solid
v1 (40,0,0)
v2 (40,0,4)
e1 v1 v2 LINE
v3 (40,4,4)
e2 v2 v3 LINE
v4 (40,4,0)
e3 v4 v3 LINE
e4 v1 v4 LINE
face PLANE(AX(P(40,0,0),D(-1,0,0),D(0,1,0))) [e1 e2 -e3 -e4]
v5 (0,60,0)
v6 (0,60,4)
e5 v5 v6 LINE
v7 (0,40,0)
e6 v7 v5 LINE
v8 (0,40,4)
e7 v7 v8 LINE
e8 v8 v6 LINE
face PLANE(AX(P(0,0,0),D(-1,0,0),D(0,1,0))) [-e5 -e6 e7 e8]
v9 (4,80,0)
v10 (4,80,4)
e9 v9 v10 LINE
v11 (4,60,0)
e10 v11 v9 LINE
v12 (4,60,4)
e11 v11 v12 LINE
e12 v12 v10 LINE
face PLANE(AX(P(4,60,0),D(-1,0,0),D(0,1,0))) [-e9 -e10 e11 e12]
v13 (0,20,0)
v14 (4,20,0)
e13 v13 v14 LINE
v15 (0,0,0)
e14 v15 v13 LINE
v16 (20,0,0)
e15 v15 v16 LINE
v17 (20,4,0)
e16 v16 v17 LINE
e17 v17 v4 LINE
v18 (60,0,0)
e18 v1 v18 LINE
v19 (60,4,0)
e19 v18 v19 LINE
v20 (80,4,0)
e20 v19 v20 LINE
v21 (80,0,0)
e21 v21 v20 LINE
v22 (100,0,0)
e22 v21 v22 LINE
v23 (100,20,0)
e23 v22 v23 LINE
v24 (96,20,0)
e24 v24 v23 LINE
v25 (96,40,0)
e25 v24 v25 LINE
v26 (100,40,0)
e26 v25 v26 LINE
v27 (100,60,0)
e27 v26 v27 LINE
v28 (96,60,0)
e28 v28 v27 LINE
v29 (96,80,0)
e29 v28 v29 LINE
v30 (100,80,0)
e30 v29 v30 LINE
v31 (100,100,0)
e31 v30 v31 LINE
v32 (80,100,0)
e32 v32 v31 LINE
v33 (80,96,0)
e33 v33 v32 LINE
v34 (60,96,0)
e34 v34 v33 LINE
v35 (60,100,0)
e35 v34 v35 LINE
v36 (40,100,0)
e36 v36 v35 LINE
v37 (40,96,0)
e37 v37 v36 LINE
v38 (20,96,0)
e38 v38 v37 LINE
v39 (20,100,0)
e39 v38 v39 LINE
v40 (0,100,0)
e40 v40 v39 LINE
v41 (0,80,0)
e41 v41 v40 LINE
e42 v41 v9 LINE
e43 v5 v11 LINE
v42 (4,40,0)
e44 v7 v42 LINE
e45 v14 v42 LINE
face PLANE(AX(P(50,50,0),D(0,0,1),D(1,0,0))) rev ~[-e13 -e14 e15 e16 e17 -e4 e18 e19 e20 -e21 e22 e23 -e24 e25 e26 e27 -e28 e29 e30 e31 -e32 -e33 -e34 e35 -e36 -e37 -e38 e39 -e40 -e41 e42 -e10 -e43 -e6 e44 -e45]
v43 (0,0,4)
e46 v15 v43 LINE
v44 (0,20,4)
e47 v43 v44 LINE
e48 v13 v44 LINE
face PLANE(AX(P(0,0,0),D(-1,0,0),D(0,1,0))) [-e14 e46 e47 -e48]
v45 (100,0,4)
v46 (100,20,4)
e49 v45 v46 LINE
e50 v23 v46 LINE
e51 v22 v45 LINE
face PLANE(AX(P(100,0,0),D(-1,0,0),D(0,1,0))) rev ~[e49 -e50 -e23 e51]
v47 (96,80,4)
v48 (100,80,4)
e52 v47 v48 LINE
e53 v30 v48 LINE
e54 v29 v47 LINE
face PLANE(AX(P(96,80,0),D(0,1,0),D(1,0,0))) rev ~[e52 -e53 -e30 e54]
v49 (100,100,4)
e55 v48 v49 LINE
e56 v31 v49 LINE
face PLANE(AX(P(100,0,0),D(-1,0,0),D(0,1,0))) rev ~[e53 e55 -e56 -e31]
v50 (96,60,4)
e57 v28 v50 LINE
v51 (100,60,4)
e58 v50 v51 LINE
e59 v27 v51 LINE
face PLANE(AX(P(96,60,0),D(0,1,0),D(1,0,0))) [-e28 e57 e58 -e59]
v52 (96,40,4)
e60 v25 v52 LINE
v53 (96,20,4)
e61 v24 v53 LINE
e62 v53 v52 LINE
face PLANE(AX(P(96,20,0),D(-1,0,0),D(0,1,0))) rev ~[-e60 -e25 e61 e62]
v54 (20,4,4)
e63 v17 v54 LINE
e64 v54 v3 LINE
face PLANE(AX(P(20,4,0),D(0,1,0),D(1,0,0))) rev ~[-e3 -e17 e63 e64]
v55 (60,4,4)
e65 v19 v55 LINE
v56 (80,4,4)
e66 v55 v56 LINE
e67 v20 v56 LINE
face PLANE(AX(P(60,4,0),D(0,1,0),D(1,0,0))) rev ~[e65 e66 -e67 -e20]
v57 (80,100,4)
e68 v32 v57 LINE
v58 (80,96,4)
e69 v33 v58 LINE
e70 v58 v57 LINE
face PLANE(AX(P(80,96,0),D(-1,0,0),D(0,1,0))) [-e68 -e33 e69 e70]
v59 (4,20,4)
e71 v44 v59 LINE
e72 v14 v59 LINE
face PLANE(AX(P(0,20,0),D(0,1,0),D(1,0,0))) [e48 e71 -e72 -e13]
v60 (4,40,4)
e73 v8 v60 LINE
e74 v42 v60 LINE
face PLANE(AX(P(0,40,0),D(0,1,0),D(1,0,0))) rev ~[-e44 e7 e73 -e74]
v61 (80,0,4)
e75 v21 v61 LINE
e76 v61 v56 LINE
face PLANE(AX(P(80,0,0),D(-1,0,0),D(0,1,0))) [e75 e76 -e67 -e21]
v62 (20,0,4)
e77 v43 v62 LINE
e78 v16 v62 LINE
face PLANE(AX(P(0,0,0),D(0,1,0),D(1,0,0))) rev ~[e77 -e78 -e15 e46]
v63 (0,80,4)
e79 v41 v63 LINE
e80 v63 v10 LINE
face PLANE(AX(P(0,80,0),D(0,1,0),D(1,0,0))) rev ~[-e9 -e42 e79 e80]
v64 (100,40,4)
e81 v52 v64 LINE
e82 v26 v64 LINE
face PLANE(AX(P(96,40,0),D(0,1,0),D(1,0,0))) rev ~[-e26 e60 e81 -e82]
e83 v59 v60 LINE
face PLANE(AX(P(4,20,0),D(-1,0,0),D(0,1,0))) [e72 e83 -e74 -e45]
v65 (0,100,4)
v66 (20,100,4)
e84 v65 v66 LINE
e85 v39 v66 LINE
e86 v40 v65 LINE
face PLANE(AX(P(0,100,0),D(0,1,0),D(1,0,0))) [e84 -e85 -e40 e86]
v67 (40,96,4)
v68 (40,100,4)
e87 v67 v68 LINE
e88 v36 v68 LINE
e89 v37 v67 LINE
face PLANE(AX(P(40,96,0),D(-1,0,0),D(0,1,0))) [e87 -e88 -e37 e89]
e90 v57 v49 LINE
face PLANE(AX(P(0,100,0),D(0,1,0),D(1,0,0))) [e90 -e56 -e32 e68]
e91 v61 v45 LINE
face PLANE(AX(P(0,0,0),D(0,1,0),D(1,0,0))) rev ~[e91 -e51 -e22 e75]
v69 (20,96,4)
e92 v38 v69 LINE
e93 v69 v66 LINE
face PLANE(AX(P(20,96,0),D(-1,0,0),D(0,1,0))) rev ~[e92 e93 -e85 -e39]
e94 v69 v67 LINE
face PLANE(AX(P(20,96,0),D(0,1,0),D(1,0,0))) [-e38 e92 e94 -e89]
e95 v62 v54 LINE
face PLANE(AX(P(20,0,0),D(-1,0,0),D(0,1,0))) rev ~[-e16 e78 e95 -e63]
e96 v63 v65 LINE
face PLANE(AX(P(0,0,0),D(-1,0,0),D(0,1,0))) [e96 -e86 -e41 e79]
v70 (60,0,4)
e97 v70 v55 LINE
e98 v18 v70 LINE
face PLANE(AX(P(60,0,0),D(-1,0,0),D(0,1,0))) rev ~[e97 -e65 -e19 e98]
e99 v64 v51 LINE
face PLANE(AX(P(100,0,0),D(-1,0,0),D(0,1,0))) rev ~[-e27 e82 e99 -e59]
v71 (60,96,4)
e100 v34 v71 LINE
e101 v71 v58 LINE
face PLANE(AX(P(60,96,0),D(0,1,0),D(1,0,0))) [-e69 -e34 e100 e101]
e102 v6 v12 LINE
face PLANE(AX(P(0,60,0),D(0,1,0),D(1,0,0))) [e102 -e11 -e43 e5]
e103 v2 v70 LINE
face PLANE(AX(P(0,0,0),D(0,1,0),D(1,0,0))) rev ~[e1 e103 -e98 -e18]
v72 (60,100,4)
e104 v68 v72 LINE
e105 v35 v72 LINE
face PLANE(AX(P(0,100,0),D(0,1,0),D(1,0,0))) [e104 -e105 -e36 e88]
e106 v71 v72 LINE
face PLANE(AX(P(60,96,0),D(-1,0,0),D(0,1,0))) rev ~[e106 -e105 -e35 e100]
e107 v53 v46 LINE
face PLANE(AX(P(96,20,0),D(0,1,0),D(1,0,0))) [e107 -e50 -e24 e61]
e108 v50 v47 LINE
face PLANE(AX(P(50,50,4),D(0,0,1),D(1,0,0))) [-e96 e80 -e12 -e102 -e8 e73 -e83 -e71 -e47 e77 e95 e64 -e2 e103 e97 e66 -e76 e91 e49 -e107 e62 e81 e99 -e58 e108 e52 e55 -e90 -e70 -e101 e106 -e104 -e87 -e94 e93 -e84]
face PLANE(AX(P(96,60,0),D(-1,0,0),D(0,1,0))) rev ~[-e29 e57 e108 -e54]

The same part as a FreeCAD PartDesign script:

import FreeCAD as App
import Part
import Sketcher
from FreeCAD import Vector


def add_polygon(sketch, points):
    """Adds a closed chain of lines whose ends are joined by coincident constraints."""
    first, n = sketch.GeometryCount, len(points)
    for a, b in zip(points, points[1:] + points[:1]):
        sketch.addGeometry(Part.LineSegment(App.Vector(*a, 0), App.Vector(*b, 0)), False)
    for i in range(n):
        sketch.addConstraint(Sketcher.Constraint("Coincident", first + i, 2, first + (i + 1) % n, 1))

doc = App.newDocument("Part")
body = doc.addObject("PartDesign::Body", "Body")

# Sketch on XY plane
sketch1 = doc.addObject("Sketcher::SketchObject", "Sketch")
body.addObject(sketch1)
sketch1.AttachmentSupport = (doc.XY_Plane, [""])
sketch1.MapMode = "FlatFace"
add_polygon(sketch1, [(0, 100), (0, 0), (100, 0), (100, 100)])  # lines 0-3
sketch1.addConstraint(Sketcher.Constraint("Vertical", 0))
sketch1.addConstraint(Sketcher.Constraint("Horizontal", 1))
sketch1.addConstraint(Sketcher.Constraint("Vertical", 2))
sketch1.addConstraint(Sketcher.Constraint("Horizontal", 3))
sketch1.addConstraint(Sketcher.Constraint("Coincident", 0, 2, -1, 1))
sketch1.addConstraint(Sketcher.Constraint("Equal", 3, 0))
sketch1.addConstraint(Sketcher.Constraint("DistanceX", 1, 1, 1, 2, 100.0))
pad1 = doc.addObject("PartDesign::Pad", "Pad")
body.addObject(pad1)
pad1.Profile = sketch1
pad1.Length = 4

# Sketch on XY plane
sketch2 = doc.addObject("Sketcher::SketchObject", "Sketch001")
body.addObject(sketch2)
sketch2.AttachmentSupport = (doc.XY_Plane, [""])
sketch2.MapMode = "FlatFace"
add_polygon(sketch2, [(20, 4), (20, 0), (40, 0), (40, 4)])  # lines 0-3
add_polygon(sketch2, [(60, 4), (60, 0), (80, 0), (80, 4)])  # lines 4-7
add_polygon(sketch2, [(0, 40), (0, 20), (4, 20), (4, 40)])  # lines 8-11
add_polygon(sketch2, [(0, 80), (0, 60), (4, 60), (4, 80)])  # lines 12-15
add_polygon(sketch2, [(20, 100), (20, 96), (40, 96), (40, 100)])  # lines 16-19
add_polygon(sketch2, [(60, 100), (60, 96), (80, 96), (80, 100)])  # lines 20-23
add_polygon(sketch2, [(96, 80), (96, 60), (100, 60), (100, 80)])  # lines 24-27
add_polygon(sketch2, [(96, 40), (96, 20), (100, 20), (100, 40)])  # lines 28-31
sketch2.addConstraint(Sketcher.Constraint("Vertical", 0))
sketch2.addConstraint(Sketcher.Constraint("Horizontal", 1))
sketch2.addConstraint(Sketcher.Constraint("Vertical", 2))
sketch2.addConstraint(Sketcher.Constraint("Horizontal", 3))
sketch2.addConstraint(Sketcher.Constraint("Vertical", 4))
sketch2.addConstraint(Sketcher.Constraint("Horizontal", 5))
sketch2.addConstraint(Sketcher.Constraint("Vertical", 6))
sketch2.addConstraint(Sketcher.Constraint("Horizontal", 7))
sketch2.addConstraint(Sketcher.Constraint("Vertical", 8))
sketch2.addConstraint(Sketcher.Constraint("Horizontal", 9))
sketch2.addConstraint(Sketcher.Constraint("Vertical", 10))
sketch2.addConstraint(Sketcher.Constraint("Horizontal", 11))
sketch2.addConstraint(Sketcher.Constraint("Vertical", 12))
sketch2.addConstraint(Sketcher.Constraint("Horizontal", 13))
sketch2.addConstraint(Sketcher.Constraint("Vertical", 14))
sketch2.addConstraint(Sketcher.Constraint("Horizontal", 15))
sketch2.addConstraint(Sketcher.Constraint("Vertical", 16))
sketch2.addConstraint(Sketcher.Constraint("Horizontal", 17))
sketch2.addConstraint(Sketcher.Constraint("Vertical", 18))
sketch2.addConstraint(Sketcher.Constraint("Horizontal", 19))
sketch2.addConstraint(Sketcher.Constraint("Vertical", 20))
sketch2.addConstraint(Sketcher.Constraint("Horizontal", 21))
sketch2.addConstraint(Sketcher.Constraint("Vertical", 22))
sketch2.addConstraint(Sketcher.Constraint("Horizontal", 23))
sketch2.addConstraint(Sketcher.Constraint("Vertical", 24))
sketch2.addConstraint(Sketcher.Constraint("Horizontal", 25))
sketch2.addConstraint(Sketcher.Constraint("Vertical", 26))
sketch2.addConstraint(Sketcher.Constraint("Horizontal", 27))
sketch2.addConstraint(Sketcher.Constraint("Vertical", 28))
sketch2.addConstraint(Sketcher.Constraint("Horizontal", 29))
sketch2.addConstraint(Sketcher.Constraint("Vertical", 30))
sketch2.addConstraint(Sketcher.Constraint("Horizontal", 31))
sketch2.addConstraint(Sketcher.Constraint("PointOnObject", 0, 2, -1))
sketch2.addConstraint(Sketcher.Constraint("PointOnObject", 4, 2, -1))
sketch2.addConstraint(Sketcher.Constraint("PointOnObject", 8, 2, -2))
sketch2.addConstraint(Sketcher.Constraint("PointOnObject", 12, 2, -2))
sketch2.addConstraint(Sketcher.Constraint("Horizontal", 3, 2, 6, 2))
sketch2.addConstraint(Sketcher.Constraint("Horizontal", 17, 2, 20, 2))
sketch2.addConstraint(Sketcher.Constraint("Horizontal", 19, 2, 22, 2))
sketch2.addConstraint(Sketcher.Constraint("Horizontal", 13, 2, 24, 2))
sketch2.addConstraint(Sketcher.Constraint("Horizontal", 15, 2, 26, 2))
sketch2.addConstraint(Sketcher.Constraint("Horizontal", 9, 2, 28, 2))
sketch2.addConstraint(Sketcher.Constraint("Horizontal", 11, 2, 30, 2))
sketch2.addConstraint(Sketcher.Constraint("Vertical", 10, 2, 13, 2))
sketch2.addConstraint(Sketcher.Constraint("Vertical", 3, 2, 16, 2))
sketch2.addConstraint(Sketcher.Constraint("Vertical", 2, 2, 17, 2))
sketch2.addConstraint(Sketcher.Constraint("Vertical", 7, 2, 20, 2))
sketch2.addConstraint(Sketcher.Constraint("Vertical", 6, 2, 21, 2))
sketch2.addConstraint(Sketcher.Constraint("Vertical", 27, 2, 28, 2))
sketch2.addConstraint(Sketcher.Constraint("Vertical", 26, 2, 29, 2))
sketch2.addConstraint(Sketcher.Constraint("Equal", 3, 5))
sketch2.addConstraint(Sketcher.Constraint("Equal", 15, 25))
sketch2.addConstraint(Sketcher.Constraint("Equal", 31, 0))
sketch2.addConstraint(Sketcher.Constraint("Equal", 23, 8))
sketch2.addConstraint(Sketcher.Constraint("Equal", 10, 12))
sketch2.addConstraint(Sketcher.Constraint("Equal", 6, 16))
sketch2.addConstraint(Sketcher.Constraint("DistanceX", 1, 1, 1, 2, 20.0))
sketch2.addConstraint(Sketcher.Constraint("DistanceX", 9, 1, 9, 2, 4.0))
sketch2.addConstraint(Sketcher.Constraint("DistanceX", -1, 1, 0, 2, 20.0))
sketch2.addConstraint(Sketcher.Constraint("DistanceX", -1, 1, 4, 2, 60.0))
sketch2.addConstraint(Sketcher.Constraint("DistanceY", -1, 1, 8, 2, 20.0))
sketch2.addConstraint(Sketcher.Constraint("DistanceY", -1, 1, 12, 2, 60.0))
sketch2.addConstraint(Sketcher.Constraint("DistanceY", -1, 1, 16, 2, 96.0))
sketch2.addConstraint(Sketcher.Constraint("DistanceX", -1, 1, 24, 2, 96.0))
pocket1 = doc.addObject("PartDesign::Pocket", "Pocket")
body.addObject(pocket1)
pocket1.Profile = sketch2
pocket1.Length = 4
pocket1.Reversed = True

doc.recompute()
